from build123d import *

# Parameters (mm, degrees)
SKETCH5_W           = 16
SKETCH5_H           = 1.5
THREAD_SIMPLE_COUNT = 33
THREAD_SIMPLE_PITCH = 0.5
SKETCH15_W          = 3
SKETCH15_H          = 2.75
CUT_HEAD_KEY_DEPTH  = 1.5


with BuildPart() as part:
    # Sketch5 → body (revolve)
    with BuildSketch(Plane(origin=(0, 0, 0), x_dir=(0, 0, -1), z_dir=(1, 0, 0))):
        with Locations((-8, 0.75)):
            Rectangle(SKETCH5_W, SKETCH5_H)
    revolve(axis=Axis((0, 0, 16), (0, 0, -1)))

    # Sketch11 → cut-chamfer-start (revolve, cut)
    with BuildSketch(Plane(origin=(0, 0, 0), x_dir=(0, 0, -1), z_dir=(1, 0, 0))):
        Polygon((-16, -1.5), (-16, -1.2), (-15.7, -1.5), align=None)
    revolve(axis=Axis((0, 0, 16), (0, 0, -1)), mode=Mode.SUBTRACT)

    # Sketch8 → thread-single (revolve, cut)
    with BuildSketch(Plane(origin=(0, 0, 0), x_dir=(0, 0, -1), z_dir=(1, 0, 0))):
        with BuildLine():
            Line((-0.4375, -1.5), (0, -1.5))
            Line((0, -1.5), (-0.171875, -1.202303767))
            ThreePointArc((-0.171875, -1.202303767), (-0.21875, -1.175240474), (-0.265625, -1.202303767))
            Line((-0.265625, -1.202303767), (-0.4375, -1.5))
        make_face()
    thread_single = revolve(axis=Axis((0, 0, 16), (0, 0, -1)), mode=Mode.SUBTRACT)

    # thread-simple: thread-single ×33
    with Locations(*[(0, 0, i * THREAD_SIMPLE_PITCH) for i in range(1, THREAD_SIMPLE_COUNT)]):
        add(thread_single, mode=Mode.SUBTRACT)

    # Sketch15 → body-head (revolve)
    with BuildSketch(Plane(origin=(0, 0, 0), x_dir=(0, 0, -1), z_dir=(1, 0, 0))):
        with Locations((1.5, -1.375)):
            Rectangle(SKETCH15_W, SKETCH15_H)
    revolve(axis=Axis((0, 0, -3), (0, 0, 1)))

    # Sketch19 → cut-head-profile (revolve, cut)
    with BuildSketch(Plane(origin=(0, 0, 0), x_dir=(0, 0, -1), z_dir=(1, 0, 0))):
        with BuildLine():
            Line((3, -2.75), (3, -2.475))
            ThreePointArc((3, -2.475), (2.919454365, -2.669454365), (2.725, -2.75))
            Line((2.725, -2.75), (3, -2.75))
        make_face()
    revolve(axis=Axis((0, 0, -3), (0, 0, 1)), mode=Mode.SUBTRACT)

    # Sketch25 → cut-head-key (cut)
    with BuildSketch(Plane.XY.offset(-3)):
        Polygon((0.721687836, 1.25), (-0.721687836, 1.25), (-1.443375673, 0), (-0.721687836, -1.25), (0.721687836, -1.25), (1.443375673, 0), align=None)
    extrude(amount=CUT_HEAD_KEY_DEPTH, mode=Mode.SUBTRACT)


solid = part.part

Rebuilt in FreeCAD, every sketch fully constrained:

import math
import FreeCAD as App
import Part
import Sketcher

V = App.Vector
Q = App.Units.Quantity

doc = App.newDocument("Part")
body = doc.addObject("PartDesign::Body", "Body")

# Sketch on YZ plane
sketch1 = body.newObject("Sketcher::SketchObject", "Sketch")
sketch1.AttachmentSupport = (doc.getObject("YZ_Plane"), [""])
sketch1.MapMode = "FlatFace"
sketch1.addGeometry(Part.LineSegment(V(1.5, 16, 0), V(0, 16, 0)), False)
sketch1.addGeometry(Part.LineSegment(V(0, 16, 0), V(0, 0, 0)), False)
sketch1.addGeometry(Part.LineSegment(V(0, 0, 0), V(1.5, 0, 0)), False)
sketch1.addGeometry(Part.LineSegment(V(1.5, 0, 0), V(1.5, 16, 0)), False)
sketch1.addConstraint(Sketcher.Constraint("Coincident", 0, 2, 1, 1))
sketch1.addConstraint(Sketcher.Constraint("Coincident", 1, 2, 2, 1))
sketch1.addConstraint(Sketcher.Constraint("Coincident", 2, 2, 3, 1))
sketch1.addConstraint(Sketcher.Constraint("Coincident", 3, 2, 0, 1))
sketch1.addConstraint(Sketcher.Constraint("Horizontal", 0))
sketch1.addConstraint(Sketcher.Constraint("Vertical", 1))
sketch1.addConstraint(Sketcher.Constraint("Horizontal", 2))
sketch1.addConstraint(Sketcher.Constraint("Vertical", 3))
sketch1.addConstraint(Sketcher.Constraint("Coincident", 1, 2, -1, 1))
sketch1.addConstraint(Sketcher.Constraint("DistanceY", 1, 2, 1, 1, Q("16 mm")))
sketch1.addConstraint(Sketcher.Constraint("DistanceX", 0, 2, 0, 1, Q("1.5 mm")))
revolution = body.newObject("PartDesign::Revolution", "Revolution")
revolution.Profile = sketch1
revolution.ReferenceAxis = (sketch1, ["V_Axis"])
revolution.Angle = 360

# Sketch on YZ plane
sketch2 = body.newObject("Sketcher::SketchObject", "Sketch001")
sketch2.AttachmentSupport = (doc.getObject("YZ_Plane"), [""])
sketch2.MapMode = "FlatFace"
sketch2.addGeometry(Part.LineSegment(V(-1.2, 16, 0), V(-1.5, 16, 0)), False)
sketch2.addGeometry(Part.LineSegment(V(-1.5, 16, 0), V(-1.5, 15.7, 0)), False)
sketch2.addGeometry(Part.LineSegment(V(-1.5, 15.7, 0), V(-1.2, 16, 0)), False)
sketch2.addConstraint(Sketcher.Constraint("Coincident", 0, 2, 1, 1))
sketch2.addConstraint(Sketcher.Constraint("Coincident", 1, 2, 2, 1))
sketch2.addConstraint(Sketcher.Constraint("Coincident", 2, 2, 0, 1))
sketch2.addConstraint(Sketcher.Constraint("Horizontal", 0))
sketch2.addConstraint(Sketcher.Constraint("Vertical", 1))
sketch2.addConstraint(Sketcher.Constraint("Equal", 0, 1))
sketch2.addConstraint(Sketcher.Constraint("DistanceX", 0, 2, 0, 1, Q("0.3 mm")))
sketch2.addConstraint(Sketcher.Constraint("DistanceY", -1, 1, 0, 2, Q("16 mm")))
sketch2.addConstraint(Sketcher.Constraint("DistanceX", 0, 2, -1, 1, Q("1.5 mm")))
groove = body.newObject("PartDesign::Groove", "Groove")
groove.Profile = sketch2
groove.ReferenceAxis = (sketch2, ["V_Axis"])
groove.Angle = 360

# Sketch on YZ plane
sketch3 = body.newObject("Sketcher::SketchObject", "Sketch002")
sketch3.AttachmentSupport = (doc.getObject("YZ_Plane"), [""])
sketch3.MapMode = "FlatFace"
sketch3.addGeometry(Part.LineSegment(V(-1.5, 0.44, 0), V(-1.5, 0, 0)), False)
sketch3.addGeometry(Part.LineSegment(V(-1.5, 0, 0), V(-1.2, 0.17, 0)), False)
sketch3.addGeometry(Part.ArcOfCircle(Part.Circle(V(-1.23, 0.22, 0), V(0, 0, 1), 0.05), math.radians(-60), math.radians(60)), False)
sketch3.addGeometry(Part.LineSegment(V(-1.2, 0.27, 0), V(-1.5, 0.44, 0)), False)
sketch3.addConstraint(Sketcher.Constraint("Coincident", 0, 2, 1, 1))
sketch3.addConstraint(Sketcher.Constraint("Tangent", 1, 2, 2, 1))
sketch3.addConstraint(Sketcher.Constraint("Tangent", 2, 2, 3, 1))
sketch3.addConstraint(Sketcher.Constraint("Coincident", 3, 2, 0, 1))
sketch3.addConstraint(Sketcher.Constraint("Vertical", 0))
sketch3.addConstraint(Sketcher.Constraint("PointOnObject", 0, 2, -1))
sketch3.addConstraint(Sketcher.Constraint("Vertical", 1, 2, 2, 2))
sketch3.addConstraint(Sketcher.Constraint("Angle", 1, Q("30 deg")))
sketch3.addConstraint(Sketcher.Constraint("DistanceX", 0, 2, -1, 1, Q("1.5 mm")))
sketch3.addConstraint(Sketcher.Constraint("DistanceY", 0, 2, 0, 1, Q("0.4375 mm")))
sketch3.addConstraint(Sketcher.Constraint("Radius", 2, Q("0.054127 mm")))
groove2 = body.newObject("PartDesign::Groove", "Groove001")
groove2.Profile = sketch3
groove2.ReferenceAxis = (sketch3, ["V_Axis"])
groove2.Angle = 360
doc.recompute()

linearpattern = body.newObject("PartDesign::LinearPattern", "LinearPattern")
linearpattern.Originals = [groove2]
linearpattern.Direction = (doc.getObject("Z_Axis"), [""])
linearpattern.Mode = "offset"
linearpattern.Offset = 0.5
linearpattern.Occurrences = 33
body.Tip = linearpattern

# Sketch on YZ plane
sketch4 = body.newObject("Sketcher::SketchObject", "Sketch003")
sketch4.AttachmentSupport = (doc.getObject("YZ_Plane"), [""])
sketch4.MapMode = "FlatFace"
sketch4.addGeometry(Part.LineSegment(V(0, 0, 0), V(-2.8, 0, 0)), False)
sketch4.addGeometry(Part.LineSegment(V(-2.8, 0, 0), V(-2.8, -3, 0)), False)
sketch4.addGeometry(Part.LineSegment(V(-2.8, -3, 0), V(0, -3, 0)), False)
sketch4.addGeometry(Part.LineSegment(V(0, -3, 0), V(0, 0, 0)), False)
sketch4.addConstraint(Sketcher.Constraint("Coincident", 0, 2, 1, 1))
sketch4.addConstraint(Sketcher.Constraint("Coincident", 1, 2, 2, 1))
sketch4.addConstraint(Sketcher.Constraint("Coincident", 2, 2, 3, 1))
sketch4.addConstraint(Sketcher.Constraint("Coincident", 3, 2, 0, 1))
sketch4.addConstraint(Sketcher.Constraint("Horizontal", 0))
sketch4.addConstraint(Sketcher.Constraint("Vertical", 1))
sketch4.addConstraint(Sketcher.Constraint("Horizontal", 2))
sketch4.addConstraint(Sketcher.Constraint("Vertical", 3))
sketch4.addConstraint(Sketcher.Constraint("Coincident", 3, 2, -1, 1))
sketch4.addConstraint(Sketcher.Constraint("DistanceY", 1, 2, 1, 1, Q("3 mm")))
sketch4.addConstraint(Sketcher.Constraint("DistanceX", 0, 2, 0, 1, Q("2.75 mm")))
revolution2 = body.newObject("PartDesign::Revolution", "Revolution001")
revolution2.Profile = sketch4
revolution2.ReferenceAxis = (sketch4, ["V_Axis"])
revolution2.Angle = 360

# Sketch on YZ plane
sketch5 = body.newObject("Sketcher::SketchObject", "Sketch004")
sketch5.AttachmentSupport = (doc.getObject("YZ_Plane"), [""])
sketch5.MapMode = "FlatFace"
sketch5.addGeometry(Part.LineSegment(V(-2.75, -3, 0), V(-2.48, -3, 0)), False)
sketch5.addGeometry(Part.ArcOfCircle(Part.Circle(V(-2.48, -2.73, 0), V(0, 0, 1), 0.27), math.radians(180), math.radians(270)), False)
sketch5.addGeometry(Part.LineSegment(V(-2.75, -2.73, 0), V(-2.75, -3, 0)), False)
sketch5.addConstraint(Sketcher.Constraint("Tangent", 0, 2, 1, 2))
sketch5.addConstraint(Sketcher.Constraint("Tangent", 1, 1, 2, 1))
sketch5.addConstraint(Sketcher.Constraint("Coincident", 2, 2, 0, 1))
sketch5.addConstraint(Sketcher.Constraint("Horizontal", 0))
sketch5.addConstraint(Sketcher.Constraint("Vertical", 2))
sketch5.addConstraint(Sketcher.Constraint("DistanceY", 0, 2, -1, 1, Q("3 mm")))
sketch5.addConstraint(Sketcher.Constraint("Radius", 1, Q("0.275 mm")))
sketch5.addConstraint(Sketcher.Constraint("DistanceX", 1, 1, -1, 1, Q("2.75 mm")))
groove3 = body.newObject("PartDesign::Groove", "Groove002")
groove3.Profile = sketch5
groove3.ReferenceAxis = (sketch5, ["V_Axis"])
groove3.Angle = 360

# Sketch on XY plane
sketch6 = body.newObject("Sketcher::SketchObject", "Sketch005")
sketch6.AttachmentSupport = (doc.getObject("XY_Plane"), [""])
sketch6.MapMode = "FlatFace"
sketch6.AttachmentOffset = App.Placement(V(0, 0, -3), App.Rotation())
sketch6.addGeometry(Part.LineSegment(V(0.7, 1.2, 0), V(-0.7, 1.2, 0)), False)
sketch6.addGeometry(Part.LineSegment(V(-0.7, 1.2, 0), V(-1.4, 0, 0)), False)
sketch6.addGeometry(Part.LineSegment(V(-1.4, 0, 0), V(-0.7, -1.2, 0)), False)
sketch6.addGeometry(Part.LineSegment(V(-0.7, -1.2, 0), V(0.7, -1.2, 0)), False)
sketch6.addGeometry(Part.LineSegment(V(0.7, -1.2, 0), V(1.4, 0, 0)), False)
sketch6.addGeometry(Part.LineSegment(V(1.4, 0, 0), V(0.7, 1.2, 0)), False)
sketch6.addConstraint(Sketcher.Constraint("Coincident", 0, 2, 1, 1))
sketch6.addConstraint(Sketcher.Constraint("Coincident", 1, 2, 2, 1))
sketch6.addConstraint(Sketcher.Constraint("Coincident", 2, 2, 3, 1))
sketch6.addConstraint(Sketcher.Constraint("Coincident", 3, 2, 4, 1))
sketch6.addConstraint(Sketcher.Constraint("Coincident", 4, 2, 5, 1))
sketch6.addConstraint(Sketcher.Constraint("Coincident", 5, 2, 0, 1))
sketch6.addConstraint(Sketcher.Constraint("Horizontal", 0))
sketch6.addConstraint(Sketcher.Constraint("Horizontal", 3))
sketch6.addConstraint(Sketcher.Constraint("Symmetric", 0, 2, 3, 2, -1, 1))
sketch6.addConstraint(Sketcher.Constraint("Symmetric", 1, 2, 4, 2, -1, 1))
sketch6.addConstraint(Sketcher.Constraint("PointOnObject", 1, 2, -1))
sketch6.addConstraint(Sketcher.Constraint("Parallel", 2, 5))
sketch6.addConstraint(Sketcher.Constraint("Vertical", 0, 2, 2, 2))
sketch6.addConstraint(Sketcher.Constraint("Angle", 1, Q("-120 deg")))
sketch6.addConstraint(Sketcher.Constraint("DistanceY", 2, 2, 0, 2, Q("2.5 mm")))
sketch6.addConstraint(Sketcher.Constraint("DistanceX", 0, 2, 0, 1, Q("1.443376 mm")))
pocket1 = body.newObject("PartDesign::Pocket", "Pocket")
pocket1.Profile = sketch6
pocket1.Length = 1.5
pocket1.Reversed = True

doc.recompute()
